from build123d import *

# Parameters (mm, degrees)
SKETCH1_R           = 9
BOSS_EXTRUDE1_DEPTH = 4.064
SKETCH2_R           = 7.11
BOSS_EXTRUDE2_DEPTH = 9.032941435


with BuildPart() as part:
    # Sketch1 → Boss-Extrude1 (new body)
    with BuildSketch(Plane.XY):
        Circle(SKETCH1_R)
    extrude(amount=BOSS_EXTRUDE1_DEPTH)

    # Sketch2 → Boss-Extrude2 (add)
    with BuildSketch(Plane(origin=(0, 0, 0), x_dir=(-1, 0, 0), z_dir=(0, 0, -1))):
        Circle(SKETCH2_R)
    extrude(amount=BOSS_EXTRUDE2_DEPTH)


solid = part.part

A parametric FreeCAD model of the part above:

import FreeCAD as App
import Part
import Sketcher

V = App.Vector

doc = App.newDocument("Part")
body = doc.addObject("PartDesign::Body", "Body")

# Sketch on XY plane
sketch1 = body.newObject("Sketcher::SketchObject", "Sketch")
sketch1.AttachmentSupport = (doc.getObject("XY_Plane"), [""])
sketch1.MapMode = "FlatFace"
sketch1.addGeometry(Part.Circle(V(0, 0, 0), V(0, 0, 1), 9), False)
sketch1.addConstraint([
    Sketcher.Constraint("Coincident", 0, 3, -1, 1),
    Sketcher.Constraint("Diameter", 0, 18.0),
])
pad1 = body.newObject("PartDesign::Pad", "Pad")
pad1.Profile = sketch1
pad1.Length = 4.064

# Sketch on XY plane
sketch2 = body.newObject("Sketcher::SketchObject", "Sketch001")
sketch2.AttachmentSupport = (doc.getObject("XY_Plane"), [""])
sketch2.MapMode = "FlatFace"
sketch2.addGeometry(Part.Circle(V(0, 0, 0), V(0, 0, 1), 7.11), False)
sketch2.addConstraint([
    Sketcher.Constraint("Coincident", 0, 3, -1, 1),
    Sketcher.Constraint("Diameter", 0, 14.22),
])
pad2 = body.newObject("PartDesign::Pad", "Pad001")
pad2.Profile = sketch2
pad2.Length = 9.032941
pad2.Reversed = True

doc.recompute()
